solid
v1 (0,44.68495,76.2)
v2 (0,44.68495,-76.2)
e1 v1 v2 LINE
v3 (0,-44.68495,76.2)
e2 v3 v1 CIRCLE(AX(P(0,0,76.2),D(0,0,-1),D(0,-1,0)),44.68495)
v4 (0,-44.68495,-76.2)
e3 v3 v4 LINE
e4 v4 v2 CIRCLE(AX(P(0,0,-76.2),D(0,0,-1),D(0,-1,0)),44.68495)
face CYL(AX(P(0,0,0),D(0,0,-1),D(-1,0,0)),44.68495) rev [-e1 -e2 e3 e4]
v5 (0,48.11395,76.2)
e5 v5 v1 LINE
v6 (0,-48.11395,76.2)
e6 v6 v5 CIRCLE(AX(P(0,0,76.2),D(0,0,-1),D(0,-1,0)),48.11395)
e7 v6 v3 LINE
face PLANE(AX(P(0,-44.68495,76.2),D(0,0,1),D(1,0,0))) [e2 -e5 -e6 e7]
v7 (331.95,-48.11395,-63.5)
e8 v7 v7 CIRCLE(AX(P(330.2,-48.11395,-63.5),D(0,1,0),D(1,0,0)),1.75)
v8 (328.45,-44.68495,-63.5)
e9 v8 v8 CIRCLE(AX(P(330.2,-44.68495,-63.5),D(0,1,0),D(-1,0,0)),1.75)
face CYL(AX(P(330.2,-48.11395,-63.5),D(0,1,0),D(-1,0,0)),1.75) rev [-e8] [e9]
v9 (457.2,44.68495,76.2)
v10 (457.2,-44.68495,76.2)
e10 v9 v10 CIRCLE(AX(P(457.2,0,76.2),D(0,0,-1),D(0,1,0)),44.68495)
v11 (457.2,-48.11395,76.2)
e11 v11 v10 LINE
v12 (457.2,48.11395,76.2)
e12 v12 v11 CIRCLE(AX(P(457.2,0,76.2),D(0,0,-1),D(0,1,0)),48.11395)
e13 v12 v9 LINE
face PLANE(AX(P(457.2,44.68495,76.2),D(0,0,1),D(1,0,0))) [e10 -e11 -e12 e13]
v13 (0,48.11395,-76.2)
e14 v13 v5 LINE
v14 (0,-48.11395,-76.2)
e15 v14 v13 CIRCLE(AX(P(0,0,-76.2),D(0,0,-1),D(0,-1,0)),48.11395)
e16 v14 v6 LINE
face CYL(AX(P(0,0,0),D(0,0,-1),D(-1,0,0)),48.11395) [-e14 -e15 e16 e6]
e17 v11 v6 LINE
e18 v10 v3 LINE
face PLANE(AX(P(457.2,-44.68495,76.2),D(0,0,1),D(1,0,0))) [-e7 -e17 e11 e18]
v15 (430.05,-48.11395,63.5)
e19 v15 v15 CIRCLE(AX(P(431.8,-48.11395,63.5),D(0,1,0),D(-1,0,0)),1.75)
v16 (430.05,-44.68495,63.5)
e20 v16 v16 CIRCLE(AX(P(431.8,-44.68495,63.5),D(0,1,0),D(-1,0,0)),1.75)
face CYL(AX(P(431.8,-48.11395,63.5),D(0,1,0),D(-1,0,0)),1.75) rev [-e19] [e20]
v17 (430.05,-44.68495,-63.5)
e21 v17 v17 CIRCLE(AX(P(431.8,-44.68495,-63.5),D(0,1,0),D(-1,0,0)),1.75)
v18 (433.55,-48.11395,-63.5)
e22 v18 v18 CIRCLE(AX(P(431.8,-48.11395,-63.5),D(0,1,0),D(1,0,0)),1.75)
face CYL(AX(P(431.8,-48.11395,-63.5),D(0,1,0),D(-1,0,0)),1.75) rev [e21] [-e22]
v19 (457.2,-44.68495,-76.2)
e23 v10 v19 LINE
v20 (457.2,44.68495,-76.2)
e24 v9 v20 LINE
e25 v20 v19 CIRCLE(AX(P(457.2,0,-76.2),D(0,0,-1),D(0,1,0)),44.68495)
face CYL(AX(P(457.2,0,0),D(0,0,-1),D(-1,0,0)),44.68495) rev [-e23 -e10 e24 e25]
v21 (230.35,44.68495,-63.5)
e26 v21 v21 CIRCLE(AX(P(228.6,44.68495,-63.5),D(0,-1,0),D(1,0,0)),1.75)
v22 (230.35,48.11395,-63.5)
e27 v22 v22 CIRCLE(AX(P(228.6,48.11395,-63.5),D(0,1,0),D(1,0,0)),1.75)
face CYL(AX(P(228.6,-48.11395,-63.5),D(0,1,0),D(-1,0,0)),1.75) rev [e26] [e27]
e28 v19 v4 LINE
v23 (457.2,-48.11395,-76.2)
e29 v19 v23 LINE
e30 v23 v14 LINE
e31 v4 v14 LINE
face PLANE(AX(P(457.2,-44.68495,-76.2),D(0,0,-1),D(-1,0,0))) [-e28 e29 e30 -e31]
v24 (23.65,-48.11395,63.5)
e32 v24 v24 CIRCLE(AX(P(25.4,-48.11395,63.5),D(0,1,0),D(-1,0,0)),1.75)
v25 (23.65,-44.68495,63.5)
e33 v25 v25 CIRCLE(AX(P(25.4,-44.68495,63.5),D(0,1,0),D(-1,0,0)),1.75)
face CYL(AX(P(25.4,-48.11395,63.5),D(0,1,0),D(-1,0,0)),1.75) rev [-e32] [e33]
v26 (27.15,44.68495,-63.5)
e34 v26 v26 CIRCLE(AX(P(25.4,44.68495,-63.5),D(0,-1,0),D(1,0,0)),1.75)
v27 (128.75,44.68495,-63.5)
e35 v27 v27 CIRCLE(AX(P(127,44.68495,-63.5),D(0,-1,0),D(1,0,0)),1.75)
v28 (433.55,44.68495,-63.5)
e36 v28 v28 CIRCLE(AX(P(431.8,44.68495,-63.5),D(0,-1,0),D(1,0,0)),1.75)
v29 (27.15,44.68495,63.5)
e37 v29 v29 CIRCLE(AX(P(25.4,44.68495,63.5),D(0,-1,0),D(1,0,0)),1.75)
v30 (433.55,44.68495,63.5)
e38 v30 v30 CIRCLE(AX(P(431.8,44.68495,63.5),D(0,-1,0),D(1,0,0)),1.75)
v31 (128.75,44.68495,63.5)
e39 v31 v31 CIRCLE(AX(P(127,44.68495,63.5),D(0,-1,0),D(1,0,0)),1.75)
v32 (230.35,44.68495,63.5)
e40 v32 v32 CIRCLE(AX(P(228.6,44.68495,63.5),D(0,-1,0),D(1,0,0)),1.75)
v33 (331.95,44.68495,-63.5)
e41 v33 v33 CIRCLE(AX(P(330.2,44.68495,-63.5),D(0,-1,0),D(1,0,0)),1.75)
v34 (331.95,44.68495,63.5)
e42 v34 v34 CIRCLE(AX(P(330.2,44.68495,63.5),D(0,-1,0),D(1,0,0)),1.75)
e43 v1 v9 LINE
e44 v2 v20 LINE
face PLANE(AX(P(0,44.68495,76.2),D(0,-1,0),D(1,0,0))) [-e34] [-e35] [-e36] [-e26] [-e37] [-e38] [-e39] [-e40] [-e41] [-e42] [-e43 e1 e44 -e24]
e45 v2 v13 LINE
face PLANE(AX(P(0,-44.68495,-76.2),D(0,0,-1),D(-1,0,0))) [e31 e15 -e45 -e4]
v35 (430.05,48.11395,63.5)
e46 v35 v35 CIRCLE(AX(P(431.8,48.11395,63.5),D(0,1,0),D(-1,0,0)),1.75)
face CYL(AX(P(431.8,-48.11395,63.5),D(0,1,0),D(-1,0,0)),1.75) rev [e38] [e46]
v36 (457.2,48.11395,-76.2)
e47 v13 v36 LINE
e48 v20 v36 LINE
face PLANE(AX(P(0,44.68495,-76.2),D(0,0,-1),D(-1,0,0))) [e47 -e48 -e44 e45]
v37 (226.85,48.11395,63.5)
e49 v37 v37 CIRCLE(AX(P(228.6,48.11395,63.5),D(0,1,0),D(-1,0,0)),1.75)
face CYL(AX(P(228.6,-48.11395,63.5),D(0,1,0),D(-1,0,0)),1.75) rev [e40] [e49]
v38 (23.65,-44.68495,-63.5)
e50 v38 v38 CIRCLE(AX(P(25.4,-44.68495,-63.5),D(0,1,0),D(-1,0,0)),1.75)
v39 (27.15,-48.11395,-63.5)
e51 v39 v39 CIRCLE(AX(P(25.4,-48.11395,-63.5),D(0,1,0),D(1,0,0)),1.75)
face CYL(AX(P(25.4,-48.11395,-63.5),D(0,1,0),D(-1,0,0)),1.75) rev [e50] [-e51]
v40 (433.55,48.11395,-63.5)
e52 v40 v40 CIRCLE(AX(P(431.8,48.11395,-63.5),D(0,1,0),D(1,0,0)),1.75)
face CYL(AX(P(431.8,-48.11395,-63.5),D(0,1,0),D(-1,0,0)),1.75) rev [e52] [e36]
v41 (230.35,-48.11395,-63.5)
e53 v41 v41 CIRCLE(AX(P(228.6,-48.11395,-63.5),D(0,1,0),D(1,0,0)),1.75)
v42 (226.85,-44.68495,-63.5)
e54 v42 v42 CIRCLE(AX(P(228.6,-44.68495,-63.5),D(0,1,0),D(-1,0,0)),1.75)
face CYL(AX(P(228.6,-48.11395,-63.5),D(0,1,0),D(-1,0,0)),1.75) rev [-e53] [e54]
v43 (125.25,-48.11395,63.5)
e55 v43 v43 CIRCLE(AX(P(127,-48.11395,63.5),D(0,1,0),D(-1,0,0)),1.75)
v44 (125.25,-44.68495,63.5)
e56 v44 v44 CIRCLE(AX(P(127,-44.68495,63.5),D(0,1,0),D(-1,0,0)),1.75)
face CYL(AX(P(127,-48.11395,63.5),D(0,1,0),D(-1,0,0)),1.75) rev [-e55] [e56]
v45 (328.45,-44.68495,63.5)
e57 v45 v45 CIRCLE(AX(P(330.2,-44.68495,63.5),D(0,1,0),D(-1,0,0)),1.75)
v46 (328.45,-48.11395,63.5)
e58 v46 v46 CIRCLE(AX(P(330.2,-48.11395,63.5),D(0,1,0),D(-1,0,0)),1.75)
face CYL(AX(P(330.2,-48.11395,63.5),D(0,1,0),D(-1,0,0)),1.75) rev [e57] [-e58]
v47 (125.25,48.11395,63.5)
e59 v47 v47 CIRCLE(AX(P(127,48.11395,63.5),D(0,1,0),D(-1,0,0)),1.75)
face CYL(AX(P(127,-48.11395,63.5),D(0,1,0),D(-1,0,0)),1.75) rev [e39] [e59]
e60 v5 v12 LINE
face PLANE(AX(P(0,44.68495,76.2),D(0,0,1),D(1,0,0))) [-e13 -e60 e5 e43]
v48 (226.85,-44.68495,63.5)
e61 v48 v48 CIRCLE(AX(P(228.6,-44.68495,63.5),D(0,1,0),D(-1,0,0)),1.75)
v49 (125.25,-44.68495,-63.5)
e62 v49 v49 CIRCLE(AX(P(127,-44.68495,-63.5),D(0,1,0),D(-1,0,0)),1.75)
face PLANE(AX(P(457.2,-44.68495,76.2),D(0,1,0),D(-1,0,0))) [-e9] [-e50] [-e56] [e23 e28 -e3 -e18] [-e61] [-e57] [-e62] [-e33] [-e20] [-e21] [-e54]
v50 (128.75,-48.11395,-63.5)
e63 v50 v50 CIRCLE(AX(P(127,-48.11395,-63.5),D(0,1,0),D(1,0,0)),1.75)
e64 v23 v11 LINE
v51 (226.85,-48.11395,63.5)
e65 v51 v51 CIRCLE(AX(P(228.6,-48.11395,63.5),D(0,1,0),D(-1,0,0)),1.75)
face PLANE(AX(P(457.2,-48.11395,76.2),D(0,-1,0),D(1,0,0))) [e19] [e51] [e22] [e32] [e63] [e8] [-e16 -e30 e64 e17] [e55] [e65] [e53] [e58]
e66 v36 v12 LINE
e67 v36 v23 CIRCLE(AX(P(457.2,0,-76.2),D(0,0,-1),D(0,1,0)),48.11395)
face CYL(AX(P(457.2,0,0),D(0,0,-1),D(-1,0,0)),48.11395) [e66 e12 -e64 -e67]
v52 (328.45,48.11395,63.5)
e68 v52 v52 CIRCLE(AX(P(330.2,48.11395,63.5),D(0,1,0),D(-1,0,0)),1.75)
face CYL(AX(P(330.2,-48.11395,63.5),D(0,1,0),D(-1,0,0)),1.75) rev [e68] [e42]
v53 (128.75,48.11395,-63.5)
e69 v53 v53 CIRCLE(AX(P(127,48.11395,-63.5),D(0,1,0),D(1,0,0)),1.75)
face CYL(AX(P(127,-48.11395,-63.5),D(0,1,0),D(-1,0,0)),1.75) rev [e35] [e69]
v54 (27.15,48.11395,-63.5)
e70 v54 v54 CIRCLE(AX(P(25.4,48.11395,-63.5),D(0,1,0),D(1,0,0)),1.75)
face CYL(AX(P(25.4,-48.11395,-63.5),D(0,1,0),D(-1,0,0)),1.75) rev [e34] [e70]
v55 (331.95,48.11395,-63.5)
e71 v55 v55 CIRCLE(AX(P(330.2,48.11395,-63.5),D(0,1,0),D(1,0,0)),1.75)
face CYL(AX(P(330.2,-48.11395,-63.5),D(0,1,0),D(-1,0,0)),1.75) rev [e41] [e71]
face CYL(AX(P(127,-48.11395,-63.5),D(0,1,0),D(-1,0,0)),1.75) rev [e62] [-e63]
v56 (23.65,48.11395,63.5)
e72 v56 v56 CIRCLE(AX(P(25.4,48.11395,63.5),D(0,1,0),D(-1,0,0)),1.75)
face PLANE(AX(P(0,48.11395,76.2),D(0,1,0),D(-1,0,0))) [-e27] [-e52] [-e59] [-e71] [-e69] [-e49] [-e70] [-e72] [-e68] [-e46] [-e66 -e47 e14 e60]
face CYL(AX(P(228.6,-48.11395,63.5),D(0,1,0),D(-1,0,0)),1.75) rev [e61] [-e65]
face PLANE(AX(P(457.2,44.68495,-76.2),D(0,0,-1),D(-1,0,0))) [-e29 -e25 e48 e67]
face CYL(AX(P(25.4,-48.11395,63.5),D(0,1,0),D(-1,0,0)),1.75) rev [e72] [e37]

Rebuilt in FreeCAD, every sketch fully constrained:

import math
import FreeCAD as App
import Part
import Sketcher
Q = App.Units.Quantity


def add_polygon(sketch, points):
    """Adds a closed chain of lines whose ends are joined by coincident constraints."""
    first, n = sketch.GeometryCount, len(points)
    for a, b in zip(points, points[1:] + points[:1]):
        sketch.addGeometry(Part.LineSegment(App.Vector(*a, 0), App.Vector(*b, 0)), False)
    for i in range(n):
        sketch.addConstraint(Sketcher.Constraint("Coincident", first + i, 2, first + (i + 1) % n, 1))

doc = App.newDocument("Part")
body = doc.addObject("PartDesign::Body", "Body")

# Sketch on YZ plane
sketch1 = body.newObject("Sketcher::SketchObject", "Sketch")
sketch1.AttachmentSupport = (doc.getObject("YZ_Plane"), [""])
sketch1.MapMode = "FlatFace"
add_polygon(sketch1, [(48.11395, 76.2), (44.68495, 76.2), (44.68495, -76.2), (48.11395, -76.2)])  # lines 0-3
sketch1.addConstraint(Sketcher.Constraint("Horizontal", 0))
sketch1.addConstraint(Sketcher.Constraint("Vertical", 1))
sketch1.addConstraint(Sketcher.Constraint("Horizontal", 2))
sketch1.addConstraint(Sketcher.Constraint("Vertical", 3))
sketch1.addConstraint(Sketcher.Constraint("DistanceY", 1, 2, 1, 1, Q("6 in")))
sketch1.addConstraint(Sketcher.Constraint("DistanceY", -1, 1, 0, 2, Q("3 in")))
sketch1.addConstraint(Sketcher.Constraint("DistanceX", 0, 2, 0, 1, Q("0.135 in")))
sketch1.addConstraint(Sketcher.Constraint("DistanceX", -1, 1, 0, 2, Q("44.68495 mm")))

# Sketch on XY plane
sketch2 = body.newObject("Sketcher::SketchObject", "Sketch001")
sketch2.AttachmentSupport = (doc.getObject("XY_Plane"), [""])
sketch2.MapMode = "FlatFace"
sketch2.addGeometry(Part.LineSegment(App.Vector(0, 46.39945, 0), App.Vector(457.2, 46.39945, 0)), False)
sketch2.addGeometry(Part.ArcOfCircle(Part.Circle(App.Vector(457.2, 0, 0), App.Vector(0, 0, 1), 46.39945), math.radians(-90), math.radians(90)), False)
sketch2.addGeometry(Part.LineSegment(App.Vector(457.2, -46.39945, 0), App.Vector(0, -46.39945, 0)), False)
sketch2.addGeometry(Part.ArcOfCircle(Part.Circle(App.Vector(0, 0, 0), App.Vector(0, 0, 1), 46.39945), math.radians(90), math.radians(270)), False)
sketch2.addConstraint(Sketcher.Constraint("Tangent", 0, 2, 1, 2))
sketch2.addConstraint(Sketcher.Constraint("Tangent", 1, 1, 2, 1))
sketch2.addConstraint(Sketcher.Constraint("Tangent", 2, 2, 3, 2))
sketch2.addConstraint(Sketcher.Constraint("Tangent", 3, 1, 0, 1))
sketch2.addConstraint(Sketcher.Constraint("Horizontal", 0))
sketch2.addConstraint(Sketcher.Constraint("Horizontal", 2))
sketch2.addConstraint(Sketcher.Constraint("Coincident", 3, 3, -1, 1))
sketch2.addConstraint(Sketcher.Constraint("DistanceX", 0, 1, 0, 2, Q("18 in")))
sketch2.addConstraint(Sketcher.Constraint("Radius", 1, Q("46.39945 mm")))
doc.recompute()

additivepipe = body.newObject("PartDesign::AdditivePipe", "AdditivePipe")
additivepipe.Profile = sketch1
additivepipe.Spine = (sketch2, ["Edge1", "Edge2", "Edge3", "Edge4"])

# Sketch on XZ plane
sketch3 = body.newObject("Sketcher::SketchObject", "Sketch002")
sketch3.AttachmentSupport = (doc.getObject("XZ_Plane"), [""])
sketch3.MapMode = "FlatFace"
sketch3.AttachmentOffset = App.Placement(App.Vector(0, 0, -48.11395), App.Rotation())
sketch3.addGeometry(Part.Circle(App.Vector(25.4, 63.5, 0), App.Vector(0, 0, 1), 1.75), False)
sketch3.addGeometry(Part.Circle(App.Vector(25.4, -63.5, 0), App.Vector(0, 0, 1), 1.75), False)
sketch3.addGeometry(Part.Circle(App.Vector(127, 63.5, 0), App.Vector(0, 0, 1), 1.75), False)
sketch3.addGeometry(Part.Circle(App.Vector(127, -63.5, 0), App.Vector(0, 0, 1), 1.75), False)
sketch3.addGeometry(Part.Circle(App.Vector(228.6, 63.5, 0), App.Vector(0, 0, 1), 1.75), False)
sketch3.addGeometry(Part.Circle(App.Vector(228.6, -63.5, 0), App.Vector(0, 0, 1), 1.75), False)
sketch3.addGeometry(Part.Circle(App.Vector(330.2, 63.5, 0), App.Vector(0, 0, 1), 1.75), False)
sketch3.addGeometry(Part.Circle(App.Vector(330.2, -63.5, 0), App.Vector(0, 0, 1), 1.75), False)
sketch3.addGeometry(Part.Circle(App.Vector(431.8, 63.5, 0), App.Vector(0, 0, 1), 1.75), False)
sketch3.addGeometry(Part.Circle(App.Vector(431.8, -63.5, 0), App.Vector(0, 0, 1), 1.75), False)
sketch3.addGeometry(Part.Circle(App.Vector(533.4, 63.5, 0), App.Vector(0, 0, 1), 1.75), False)
sketch3.addGeometry(Part.Circle(App.Vector(533.4, -63.5, 0), App.Vector(0, 0, 1), 1.75), False)
sketch3.addConstraint(Sketcher.Constraint("Equal", 0, 1))
sketch3.addConstraint(Sketcher.Constraint("Equal", 1, 2))
sketch3.addConstraint(Sketcher.Constraint("Equal", 2, 3))
sketch3.addConstraint(Sketcher.Constraint("Equal", 3, 4))
sketch3.addConstraint(Sketcher.Constraint("Equal", 4, 5))
sketch3.addConstraint(Sketcher.Constraint("Equal", 5, 6))
sketch3.addConstraint(Sketcher.Constraint("Equal", 6, 7))
sketch3.addConstraint(Sketcher.Constraint("Equal", 7, 8))
sketch3.addConstraint(Sketcher.Constraint("Equal", 8, 9))
sketch3.addConstraint(Sketcher.Constraint("Equal", 9, 10))
sketch3.addConstraint(Sketcher.Constraint("Equal", 10, 11))
sketch3.addConstraint(Sketcher.Constraint("Symmetric", 0, 3, 1, 3, -1))
sketch3.addConstraint(Sketcher.Constraint("Symmetric", 2, 3, 3, 3, -1))
sketch3.addConstraint(Sketcher.Constraint("Symmetric", 4, 3, 5, 3, -1))
sketch3.addConstraint(Sketcher.Constraint("Symmetric", 6, 3, 7, 3, -1))
sketch3.addConstraint(Sketcher.Constraint("Symmetric", 8, 3, 9, 3, -1))
sketch3.addConstraint(Sketcher.Constraint("Symmetric", 10, 3, 11, 3, -1))
sketch3.addConstraint(Sketcher.Constraint("Horizontal", 0, 3, 2, 3))
sketch3.addConstraint(Sketcher.Constraint("Horizontal", 2, 3, 4, 3))
sketch3.addConstraint(Sketcher.Constraint("Horizontal", 4, 3, 6, 3))
sketch3.addConstraint(Sketcher.Constraint("Horizontal", 6, 3, 8, 3))
sketch3.addConstraint(Sketcher.Constraint("Horizontal", 8, 3, 10, 3))
sketch3.addConstraint(Sketcher.Constraint("DistanceX", -1, 1, 0, 3, Q("1 in")))
sketch3.addConstraint(Sketcher.Constraint("DistanceX", -1, 1, 2, 3, Q("5 in")))
sketch3.addConstraint(Sketcher.Constraint("DistanceX", -1, 1, 4, 3, Q("9 in")))
sketch3.addConstraint(Sketcher.Constraint("DistanceX", -1, 1, 6, 3, Q("13 in")))
sketch3.addConstraint(Sketcher.Constraint("DistanceX", -1, 1, 8, 3, Q("17 in")))
sketch3.addConstraint(Sketcher.Constraint("DistanceX", -1, 1, 10, 3, Q("21 in")))
sketch3.addConstraint(Sketcher.Constraint("DistanceY", 1, 3, 0, 3, Q("5 in")))
sketch3.addConstraint(Sketcher.Constraint("Diameter", 0, Q("3.5 mm")))
pocket1 = body.newObject("PartDesign::Pocket", "Pocket")
pocket1.Profile = sketch3
pocket1.Type = "ThroughAll"
pocket1.Reversed = True

doc.recompute()
